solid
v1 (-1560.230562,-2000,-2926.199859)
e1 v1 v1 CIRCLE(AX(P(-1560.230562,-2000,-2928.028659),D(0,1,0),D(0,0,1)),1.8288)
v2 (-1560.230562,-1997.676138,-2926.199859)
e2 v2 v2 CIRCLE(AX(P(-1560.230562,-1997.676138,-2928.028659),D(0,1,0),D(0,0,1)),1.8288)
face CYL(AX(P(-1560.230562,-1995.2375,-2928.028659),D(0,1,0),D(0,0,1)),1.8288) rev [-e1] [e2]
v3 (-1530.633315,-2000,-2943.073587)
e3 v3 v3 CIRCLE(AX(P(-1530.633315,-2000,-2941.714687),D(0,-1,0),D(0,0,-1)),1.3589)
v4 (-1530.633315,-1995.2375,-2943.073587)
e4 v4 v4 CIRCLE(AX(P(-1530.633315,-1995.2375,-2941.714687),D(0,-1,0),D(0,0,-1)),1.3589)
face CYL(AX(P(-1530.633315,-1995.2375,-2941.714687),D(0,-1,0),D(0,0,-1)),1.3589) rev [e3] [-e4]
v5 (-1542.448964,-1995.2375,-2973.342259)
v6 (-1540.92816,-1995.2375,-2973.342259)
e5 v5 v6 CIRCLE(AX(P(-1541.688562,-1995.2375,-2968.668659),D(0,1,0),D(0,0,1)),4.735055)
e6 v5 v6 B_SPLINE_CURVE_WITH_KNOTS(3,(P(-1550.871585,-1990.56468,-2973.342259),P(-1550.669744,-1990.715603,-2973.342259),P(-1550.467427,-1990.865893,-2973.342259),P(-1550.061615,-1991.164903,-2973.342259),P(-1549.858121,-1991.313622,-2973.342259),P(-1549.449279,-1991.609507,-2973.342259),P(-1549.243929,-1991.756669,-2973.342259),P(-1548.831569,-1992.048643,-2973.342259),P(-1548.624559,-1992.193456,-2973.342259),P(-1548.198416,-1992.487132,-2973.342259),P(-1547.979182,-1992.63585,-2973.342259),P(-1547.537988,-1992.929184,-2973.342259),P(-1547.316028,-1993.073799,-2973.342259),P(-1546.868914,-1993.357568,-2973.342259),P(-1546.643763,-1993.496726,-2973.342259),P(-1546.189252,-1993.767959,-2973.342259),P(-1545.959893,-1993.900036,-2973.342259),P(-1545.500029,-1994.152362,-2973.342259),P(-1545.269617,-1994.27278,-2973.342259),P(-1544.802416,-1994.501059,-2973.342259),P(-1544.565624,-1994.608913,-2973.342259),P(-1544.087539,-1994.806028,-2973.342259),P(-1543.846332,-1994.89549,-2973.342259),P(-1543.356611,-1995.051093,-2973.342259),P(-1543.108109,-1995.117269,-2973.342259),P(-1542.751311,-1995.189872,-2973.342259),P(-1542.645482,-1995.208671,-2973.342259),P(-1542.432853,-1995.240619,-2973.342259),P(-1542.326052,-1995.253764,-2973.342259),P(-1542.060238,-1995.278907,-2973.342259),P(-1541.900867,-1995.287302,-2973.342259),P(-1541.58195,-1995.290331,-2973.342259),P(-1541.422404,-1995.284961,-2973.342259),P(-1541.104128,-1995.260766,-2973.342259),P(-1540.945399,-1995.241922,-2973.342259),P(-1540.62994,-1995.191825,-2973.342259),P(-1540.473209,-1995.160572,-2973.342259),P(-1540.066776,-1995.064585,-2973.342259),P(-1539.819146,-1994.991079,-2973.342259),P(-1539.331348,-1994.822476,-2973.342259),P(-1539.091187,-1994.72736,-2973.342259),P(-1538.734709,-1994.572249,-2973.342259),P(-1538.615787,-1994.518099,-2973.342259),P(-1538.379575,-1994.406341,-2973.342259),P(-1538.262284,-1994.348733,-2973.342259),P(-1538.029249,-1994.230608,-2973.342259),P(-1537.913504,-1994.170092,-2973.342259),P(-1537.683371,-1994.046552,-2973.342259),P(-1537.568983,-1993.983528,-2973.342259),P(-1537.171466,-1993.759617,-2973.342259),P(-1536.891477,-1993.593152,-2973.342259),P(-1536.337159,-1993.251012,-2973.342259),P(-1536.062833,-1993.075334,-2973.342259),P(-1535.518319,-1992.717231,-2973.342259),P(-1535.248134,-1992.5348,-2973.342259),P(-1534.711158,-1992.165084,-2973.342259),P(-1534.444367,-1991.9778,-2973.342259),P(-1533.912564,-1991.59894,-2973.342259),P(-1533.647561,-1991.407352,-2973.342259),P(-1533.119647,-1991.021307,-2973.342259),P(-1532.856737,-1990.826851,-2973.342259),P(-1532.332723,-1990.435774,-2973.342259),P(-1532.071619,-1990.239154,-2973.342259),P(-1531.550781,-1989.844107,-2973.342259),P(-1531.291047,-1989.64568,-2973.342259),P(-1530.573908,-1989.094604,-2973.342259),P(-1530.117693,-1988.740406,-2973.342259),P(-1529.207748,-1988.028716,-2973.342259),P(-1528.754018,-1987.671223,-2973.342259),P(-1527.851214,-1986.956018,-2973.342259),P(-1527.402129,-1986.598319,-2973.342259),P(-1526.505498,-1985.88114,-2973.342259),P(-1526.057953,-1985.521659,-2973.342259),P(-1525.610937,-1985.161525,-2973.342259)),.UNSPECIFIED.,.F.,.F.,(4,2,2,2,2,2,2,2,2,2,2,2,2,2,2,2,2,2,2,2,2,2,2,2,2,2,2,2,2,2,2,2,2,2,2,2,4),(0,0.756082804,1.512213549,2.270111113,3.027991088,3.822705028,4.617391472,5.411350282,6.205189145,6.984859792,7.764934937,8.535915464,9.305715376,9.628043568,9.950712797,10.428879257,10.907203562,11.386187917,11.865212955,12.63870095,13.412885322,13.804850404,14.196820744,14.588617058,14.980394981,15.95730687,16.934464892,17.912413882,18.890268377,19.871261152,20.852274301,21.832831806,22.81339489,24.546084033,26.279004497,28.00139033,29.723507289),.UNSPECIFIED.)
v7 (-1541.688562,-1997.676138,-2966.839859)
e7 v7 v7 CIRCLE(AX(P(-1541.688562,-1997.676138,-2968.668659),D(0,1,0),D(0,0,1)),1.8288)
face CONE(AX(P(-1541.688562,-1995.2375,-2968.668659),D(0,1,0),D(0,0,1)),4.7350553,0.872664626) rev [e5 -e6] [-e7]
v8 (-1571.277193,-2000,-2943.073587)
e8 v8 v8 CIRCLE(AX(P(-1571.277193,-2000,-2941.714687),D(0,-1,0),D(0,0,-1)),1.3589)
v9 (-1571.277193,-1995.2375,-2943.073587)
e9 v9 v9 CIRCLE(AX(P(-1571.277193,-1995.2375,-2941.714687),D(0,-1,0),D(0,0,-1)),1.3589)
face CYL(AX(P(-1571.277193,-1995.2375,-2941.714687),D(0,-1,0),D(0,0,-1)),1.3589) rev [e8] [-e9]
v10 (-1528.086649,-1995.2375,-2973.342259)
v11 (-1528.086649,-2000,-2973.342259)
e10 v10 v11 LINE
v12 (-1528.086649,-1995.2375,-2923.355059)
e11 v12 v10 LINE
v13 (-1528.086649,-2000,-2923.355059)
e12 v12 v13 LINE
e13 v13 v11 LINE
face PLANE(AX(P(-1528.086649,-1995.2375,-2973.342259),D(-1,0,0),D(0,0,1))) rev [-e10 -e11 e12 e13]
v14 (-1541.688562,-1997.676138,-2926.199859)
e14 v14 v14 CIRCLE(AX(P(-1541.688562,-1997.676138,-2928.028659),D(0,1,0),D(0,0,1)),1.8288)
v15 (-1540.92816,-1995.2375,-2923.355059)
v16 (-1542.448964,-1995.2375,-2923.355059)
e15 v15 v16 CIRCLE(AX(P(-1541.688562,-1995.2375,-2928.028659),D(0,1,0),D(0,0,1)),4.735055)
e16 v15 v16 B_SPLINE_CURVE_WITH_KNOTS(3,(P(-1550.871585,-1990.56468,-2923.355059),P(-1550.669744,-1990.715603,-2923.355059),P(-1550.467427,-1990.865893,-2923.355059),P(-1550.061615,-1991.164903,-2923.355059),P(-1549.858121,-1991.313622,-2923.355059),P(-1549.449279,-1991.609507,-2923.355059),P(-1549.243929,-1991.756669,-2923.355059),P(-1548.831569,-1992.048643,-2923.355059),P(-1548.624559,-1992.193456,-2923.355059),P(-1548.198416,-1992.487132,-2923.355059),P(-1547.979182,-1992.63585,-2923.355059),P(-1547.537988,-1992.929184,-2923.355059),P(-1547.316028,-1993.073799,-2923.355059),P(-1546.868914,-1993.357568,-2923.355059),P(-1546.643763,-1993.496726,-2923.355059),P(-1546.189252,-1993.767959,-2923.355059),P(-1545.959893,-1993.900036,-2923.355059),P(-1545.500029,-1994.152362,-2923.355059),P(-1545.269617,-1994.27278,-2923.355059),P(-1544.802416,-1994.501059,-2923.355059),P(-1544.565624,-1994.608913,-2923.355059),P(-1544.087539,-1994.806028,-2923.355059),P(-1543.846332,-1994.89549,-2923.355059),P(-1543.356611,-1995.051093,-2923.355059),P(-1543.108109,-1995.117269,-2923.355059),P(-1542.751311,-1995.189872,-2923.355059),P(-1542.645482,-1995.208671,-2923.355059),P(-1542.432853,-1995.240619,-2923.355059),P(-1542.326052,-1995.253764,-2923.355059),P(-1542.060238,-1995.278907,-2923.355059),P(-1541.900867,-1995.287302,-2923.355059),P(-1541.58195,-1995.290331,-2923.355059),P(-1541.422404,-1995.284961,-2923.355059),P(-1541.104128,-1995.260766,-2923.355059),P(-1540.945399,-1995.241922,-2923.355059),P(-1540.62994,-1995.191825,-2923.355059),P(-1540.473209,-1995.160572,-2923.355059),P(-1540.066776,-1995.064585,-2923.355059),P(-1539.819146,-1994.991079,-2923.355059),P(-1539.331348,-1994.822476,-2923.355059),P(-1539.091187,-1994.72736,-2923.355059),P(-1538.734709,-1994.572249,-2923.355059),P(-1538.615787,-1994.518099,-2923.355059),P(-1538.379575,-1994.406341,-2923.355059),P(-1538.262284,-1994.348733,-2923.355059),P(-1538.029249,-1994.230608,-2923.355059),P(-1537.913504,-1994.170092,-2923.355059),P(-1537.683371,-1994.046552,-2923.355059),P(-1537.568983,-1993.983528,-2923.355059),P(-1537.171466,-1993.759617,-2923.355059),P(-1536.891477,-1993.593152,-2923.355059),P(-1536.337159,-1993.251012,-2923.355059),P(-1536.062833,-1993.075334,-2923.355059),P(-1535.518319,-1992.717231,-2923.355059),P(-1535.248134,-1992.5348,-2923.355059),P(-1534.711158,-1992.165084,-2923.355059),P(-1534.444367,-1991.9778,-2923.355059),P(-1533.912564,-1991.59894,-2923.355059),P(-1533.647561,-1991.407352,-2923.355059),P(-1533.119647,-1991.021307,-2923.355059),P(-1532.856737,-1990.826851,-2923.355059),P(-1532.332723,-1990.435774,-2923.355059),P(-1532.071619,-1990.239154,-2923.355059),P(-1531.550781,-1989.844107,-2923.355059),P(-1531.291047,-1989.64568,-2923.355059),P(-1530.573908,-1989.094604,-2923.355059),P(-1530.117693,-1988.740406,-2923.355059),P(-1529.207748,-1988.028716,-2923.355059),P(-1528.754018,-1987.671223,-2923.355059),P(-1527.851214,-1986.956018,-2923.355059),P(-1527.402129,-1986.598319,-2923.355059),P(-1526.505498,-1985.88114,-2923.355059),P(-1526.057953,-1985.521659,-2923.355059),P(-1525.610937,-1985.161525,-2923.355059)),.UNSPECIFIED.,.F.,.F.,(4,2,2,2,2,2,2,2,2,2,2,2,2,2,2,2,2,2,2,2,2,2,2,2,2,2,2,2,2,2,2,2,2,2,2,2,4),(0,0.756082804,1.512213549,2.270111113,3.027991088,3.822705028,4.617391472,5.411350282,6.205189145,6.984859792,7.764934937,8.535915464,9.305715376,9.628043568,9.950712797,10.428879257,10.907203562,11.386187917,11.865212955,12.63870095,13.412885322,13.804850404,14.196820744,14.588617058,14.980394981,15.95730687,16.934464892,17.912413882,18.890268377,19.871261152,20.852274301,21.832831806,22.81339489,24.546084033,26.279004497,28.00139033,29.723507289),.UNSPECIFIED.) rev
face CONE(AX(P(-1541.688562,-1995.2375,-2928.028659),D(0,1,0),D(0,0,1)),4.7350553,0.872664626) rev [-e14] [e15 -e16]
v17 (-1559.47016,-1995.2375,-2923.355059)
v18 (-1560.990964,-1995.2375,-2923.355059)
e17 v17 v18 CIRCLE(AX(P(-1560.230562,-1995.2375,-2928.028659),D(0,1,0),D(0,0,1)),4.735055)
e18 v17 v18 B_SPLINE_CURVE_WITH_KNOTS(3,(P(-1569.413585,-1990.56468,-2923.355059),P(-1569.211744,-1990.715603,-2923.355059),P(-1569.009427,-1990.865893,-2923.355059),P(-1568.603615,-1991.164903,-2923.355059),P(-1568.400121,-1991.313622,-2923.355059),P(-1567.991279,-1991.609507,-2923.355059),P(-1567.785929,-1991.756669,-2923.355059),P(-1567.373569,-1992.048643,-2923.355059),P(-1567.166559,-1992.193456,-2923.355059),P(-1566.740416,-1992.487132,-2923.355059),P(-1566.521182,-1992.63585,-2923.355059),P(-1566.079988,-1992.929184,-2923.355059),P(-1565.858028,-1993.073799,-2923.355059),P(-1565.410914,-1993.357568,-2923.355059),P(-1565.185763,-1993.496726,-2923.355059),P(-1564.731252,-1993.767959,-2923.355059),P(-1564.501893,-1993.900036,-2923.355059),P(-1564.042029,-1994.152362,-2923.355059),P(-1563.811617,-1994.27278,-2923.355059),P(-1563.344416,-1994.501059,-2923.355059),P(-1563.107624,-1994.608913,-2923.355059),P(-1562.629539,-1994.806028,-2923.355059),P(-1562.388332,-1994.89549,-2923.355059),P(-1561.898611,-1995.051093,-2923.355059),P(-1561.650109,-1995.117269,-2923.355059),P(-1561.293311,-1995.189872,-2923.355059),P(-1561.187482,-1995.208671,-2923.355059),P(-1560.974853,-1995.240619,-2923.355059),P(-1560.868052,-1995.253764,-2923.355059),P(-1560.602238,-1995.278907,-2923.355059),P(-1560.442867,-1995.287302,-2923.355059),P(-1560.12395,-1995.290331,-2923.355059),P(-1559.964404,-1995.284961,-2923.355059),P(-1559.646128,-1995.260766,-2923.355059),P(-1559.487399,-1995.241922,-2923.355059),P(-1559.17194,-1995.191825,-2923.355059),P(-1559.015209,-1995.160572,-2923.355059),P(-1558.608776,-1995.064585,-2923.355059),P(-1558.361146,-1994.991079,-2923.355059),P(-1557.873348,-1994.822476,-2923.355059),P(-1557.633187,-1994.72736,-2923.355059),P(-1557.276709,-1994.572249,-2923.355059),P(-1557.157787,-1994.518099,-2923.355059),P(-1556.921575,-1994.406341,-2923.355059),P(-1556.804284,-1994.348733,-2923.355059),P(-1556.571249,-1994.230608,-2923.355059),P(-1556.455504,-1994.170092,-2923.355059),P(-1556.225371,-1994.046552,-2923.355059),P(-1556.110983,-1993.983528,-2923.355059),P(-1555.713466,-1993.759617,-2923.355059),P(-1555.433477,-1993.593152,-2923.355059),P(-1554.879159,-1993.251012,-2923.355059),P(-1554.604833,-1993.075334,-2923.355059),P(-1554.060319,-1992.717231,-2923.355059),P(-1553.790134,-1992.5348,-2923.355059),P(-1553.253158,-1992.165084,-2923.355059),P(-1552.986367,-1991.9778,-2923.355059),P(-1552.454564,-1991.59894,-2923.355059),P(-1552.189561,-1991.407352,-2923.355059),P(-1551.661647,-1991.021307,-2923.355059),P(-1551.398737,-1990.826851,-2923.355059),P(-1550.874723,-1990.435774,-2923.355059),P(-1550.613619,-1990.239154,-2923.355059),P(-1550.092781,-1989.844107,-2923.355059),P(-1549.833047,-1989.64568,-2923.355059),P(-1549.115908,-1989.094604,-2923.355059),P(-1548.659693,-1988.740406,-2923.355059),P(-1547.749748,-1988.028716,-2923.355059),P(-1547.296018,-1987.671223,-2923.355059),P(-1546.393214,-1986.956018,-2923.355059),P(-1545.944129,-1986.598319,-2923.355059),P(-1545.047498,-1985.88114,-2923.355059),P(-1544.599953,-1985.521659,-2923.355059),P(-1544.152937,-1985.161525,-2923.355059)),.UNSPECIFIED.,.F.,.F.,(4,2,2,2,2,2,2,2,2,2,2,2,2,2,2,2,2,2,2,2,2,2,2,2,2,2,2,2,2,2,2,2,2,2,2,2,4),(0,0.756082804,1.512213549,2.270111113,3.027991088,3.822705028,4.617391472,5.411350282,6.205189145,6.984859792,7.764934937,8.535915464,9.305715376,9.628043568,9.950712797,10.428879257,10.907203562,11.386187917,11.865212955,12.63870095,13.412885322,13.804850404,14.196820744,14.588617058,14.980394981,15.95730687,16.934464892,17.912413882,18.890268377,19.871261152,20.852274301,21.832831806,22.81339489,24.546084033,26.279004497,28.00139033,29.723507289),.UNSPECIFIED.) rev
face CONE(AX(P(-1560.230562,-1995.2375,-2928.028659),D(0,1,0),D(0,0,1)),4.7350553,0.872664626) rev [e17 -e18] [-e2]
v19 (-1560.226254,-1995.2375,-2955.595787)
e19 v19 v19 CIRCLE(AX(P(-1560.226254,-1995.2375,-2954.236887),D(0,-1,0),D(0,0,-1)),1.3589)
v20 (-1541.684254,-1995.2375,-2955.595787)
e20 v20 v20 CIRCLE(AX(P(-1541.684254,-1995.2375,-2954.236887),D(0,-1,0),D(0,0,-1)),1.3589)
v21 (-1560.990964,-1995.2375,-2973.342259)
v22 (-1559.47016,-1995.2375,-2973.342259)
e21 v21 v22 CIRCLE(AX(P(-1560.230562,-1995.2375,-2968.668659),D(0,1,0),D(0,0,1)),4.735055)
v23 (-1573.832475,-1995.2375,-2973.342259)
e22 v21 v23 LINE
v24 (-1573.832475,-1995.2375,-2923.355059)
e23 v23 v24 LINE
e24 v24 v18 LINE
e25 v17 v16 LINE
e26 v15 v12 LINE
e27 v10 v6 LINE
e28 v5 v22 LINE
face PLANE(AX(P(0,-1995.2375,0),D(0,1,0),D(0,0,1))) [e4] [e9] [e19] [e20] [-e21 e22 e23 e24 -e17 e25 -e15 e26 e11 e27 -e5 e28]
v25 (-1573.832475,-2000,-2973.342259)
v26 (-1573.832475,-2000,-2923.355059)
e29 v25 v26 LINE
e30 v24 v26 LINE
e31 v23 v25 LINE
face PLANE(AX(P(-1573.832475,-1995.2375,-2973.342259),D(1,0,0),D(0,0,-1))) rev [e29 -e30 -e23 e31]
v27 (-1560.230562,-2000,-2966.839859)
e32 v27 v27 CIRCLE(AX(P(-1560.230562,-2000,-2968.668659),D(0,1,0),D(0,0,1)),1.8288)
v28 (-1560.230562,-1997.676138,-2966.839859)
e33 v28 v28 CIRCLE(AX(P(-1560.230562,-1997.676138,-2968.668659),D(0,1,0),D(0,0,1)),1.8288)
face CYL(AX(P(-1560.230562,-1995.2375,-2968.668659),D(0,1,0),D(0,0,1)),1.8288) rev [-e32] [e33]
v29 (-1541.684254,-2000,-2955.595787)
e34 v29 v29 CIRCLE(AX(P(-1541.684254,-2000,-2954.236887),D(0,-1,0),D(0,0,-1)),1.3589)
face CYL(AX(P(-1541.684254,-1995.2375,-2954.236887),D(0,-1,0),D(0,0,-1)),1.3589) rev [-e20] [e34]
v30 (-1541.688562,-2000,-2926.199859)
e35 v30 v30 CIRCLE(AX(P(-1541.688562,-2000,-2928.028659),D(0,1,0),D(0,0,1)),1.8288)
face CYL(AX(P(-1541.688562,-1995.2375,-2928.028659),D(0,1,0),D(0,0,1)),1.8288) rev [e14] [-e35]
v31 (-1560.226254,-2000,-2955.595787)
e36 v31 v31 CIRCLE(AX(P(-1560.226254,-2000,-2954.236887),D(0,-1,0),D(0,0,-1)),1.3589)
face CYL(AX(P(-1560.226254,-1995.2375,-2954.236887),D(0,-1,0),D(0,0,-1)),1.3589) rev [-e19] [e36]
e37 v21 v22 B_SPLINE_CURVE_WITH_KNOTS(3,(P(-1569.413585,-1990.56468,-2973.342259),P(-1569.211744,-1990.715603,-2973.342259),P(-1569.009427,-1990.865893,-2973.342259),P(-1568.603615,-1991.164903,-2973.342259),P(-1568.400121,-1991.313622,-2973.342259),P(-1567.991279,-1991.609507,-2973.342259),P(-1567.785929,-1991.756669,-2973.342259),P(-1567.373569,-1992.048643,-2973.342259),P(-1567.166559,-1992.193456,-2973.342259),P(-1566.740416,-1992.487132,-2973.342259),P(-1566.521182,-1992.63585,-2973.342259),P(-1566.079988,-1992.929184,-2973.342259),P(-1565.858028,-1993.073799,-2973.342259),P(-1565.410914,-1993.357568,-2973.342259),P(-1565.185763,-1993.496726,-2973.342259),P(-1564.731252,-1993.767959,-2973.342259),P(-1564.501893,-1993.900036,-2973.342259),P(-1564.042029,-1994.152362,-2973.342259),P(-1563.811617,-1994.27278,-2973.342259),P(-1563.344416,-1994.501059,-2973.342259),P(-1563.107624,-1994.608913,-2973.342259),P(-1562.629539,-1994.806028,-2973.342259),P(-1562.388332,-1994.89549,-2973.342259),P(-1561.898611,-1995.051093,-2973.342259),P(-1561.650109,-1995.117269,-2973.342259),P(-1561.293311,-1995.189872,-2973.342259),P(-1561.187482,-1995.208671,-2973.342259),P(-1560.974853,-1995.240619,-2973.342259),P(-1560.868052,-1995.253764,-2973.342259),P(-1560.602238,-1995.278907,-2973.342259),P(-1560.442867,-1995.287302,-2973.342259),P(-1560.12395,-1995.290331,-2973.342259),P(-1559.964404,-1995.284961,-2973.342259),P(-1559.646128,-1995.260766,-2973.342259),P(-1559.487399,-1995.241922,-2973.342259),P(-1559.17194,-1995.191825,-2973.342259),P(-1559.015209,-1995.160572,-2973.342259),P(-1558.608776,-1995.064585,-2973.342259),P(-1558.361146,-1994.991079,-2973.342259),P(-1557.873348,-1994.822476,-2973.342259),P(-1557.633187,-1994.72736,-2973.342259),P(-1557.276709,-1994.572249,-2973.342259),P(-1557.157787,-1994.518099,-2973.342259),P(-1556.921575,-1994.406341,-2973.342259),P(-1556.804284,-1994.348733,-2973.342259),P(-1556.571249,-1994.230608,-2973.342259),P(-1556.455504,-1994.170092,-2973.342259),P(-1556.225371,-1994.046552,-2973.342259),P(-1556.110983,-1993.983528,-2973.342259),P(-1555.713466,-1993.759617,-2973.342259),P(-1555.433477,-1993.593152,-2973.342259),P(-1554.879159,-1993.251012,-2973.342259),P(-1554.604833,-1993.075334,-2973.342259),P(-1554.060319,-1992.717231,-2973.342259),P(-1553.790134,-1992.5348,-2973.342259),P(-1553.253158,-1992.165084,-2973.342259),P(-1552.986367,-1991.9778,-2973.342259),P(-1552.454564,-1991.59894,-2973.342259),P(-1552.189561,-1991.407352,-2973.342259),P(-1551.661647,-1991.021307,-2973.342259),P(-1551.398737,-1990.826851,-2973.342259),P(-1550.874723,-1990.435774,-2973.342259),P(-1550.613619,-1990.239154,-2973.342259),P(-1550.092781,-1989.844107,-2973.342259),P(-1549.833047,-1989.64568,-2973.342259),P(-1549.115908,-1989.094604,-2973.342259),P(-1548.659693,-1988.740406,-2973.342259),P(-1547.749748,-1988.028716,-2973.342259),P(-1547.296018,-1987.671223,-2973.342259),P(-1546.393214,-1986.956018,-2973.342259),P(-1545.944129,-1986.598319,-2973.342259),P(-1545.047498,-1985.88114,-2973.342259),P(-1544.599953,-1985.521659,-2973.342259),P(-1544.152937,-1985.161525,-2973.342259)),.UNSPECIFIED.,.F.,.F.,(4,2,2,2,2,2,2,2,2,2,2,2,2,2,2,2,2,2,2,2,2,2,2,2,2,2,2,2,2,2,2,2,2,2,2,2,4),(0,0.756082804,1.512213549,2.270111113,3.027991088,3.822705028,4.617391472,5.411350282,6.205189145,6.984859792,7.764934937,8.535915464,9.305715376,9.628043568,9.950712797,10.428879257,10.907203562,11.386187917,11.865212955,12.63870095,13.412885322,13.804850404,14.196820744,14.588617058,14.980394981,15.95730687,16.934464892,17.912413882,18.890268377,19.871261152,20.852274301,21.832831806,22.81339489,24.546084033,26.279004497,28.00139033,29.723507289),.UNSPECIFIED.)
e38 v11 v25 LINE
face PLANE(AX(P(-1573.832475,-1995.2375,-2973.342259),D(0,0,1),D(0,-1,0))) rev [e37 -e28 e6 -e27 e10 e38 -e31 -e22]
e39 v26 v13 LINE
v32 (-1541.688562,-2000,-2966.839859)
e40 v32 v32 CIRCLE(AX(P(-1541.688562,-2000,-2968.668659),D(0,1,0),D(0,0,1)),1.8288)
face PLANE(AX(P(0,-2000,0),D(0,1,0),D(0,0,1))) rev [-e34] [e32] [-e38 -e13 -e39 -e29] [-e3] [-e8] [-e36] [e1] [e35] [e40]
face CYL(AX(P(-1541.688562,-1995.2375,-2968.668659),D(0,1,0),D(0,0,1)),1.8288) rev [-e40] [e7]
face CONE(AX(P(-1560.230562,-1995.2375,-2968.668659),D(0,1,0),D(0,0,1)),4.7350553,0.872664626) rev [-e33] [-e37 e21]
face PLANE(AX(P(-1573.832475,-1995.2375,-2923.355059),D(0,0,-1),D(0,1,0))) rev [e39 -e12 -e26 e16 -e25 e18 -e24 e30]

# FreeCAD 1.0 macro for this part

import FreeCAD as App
import Part
import Sketcher
Q = App.Units.Quantity

doc = App.newDocument("Part")
body = doc.addObject("PartDesign::Body", "Body")

# Sketch on XZ plane
sketch1 = body.newObject("Sketcher::SketchObject", "Sketch")
sketch1.AttachmentSupport = (doc.getObject("XZ_Plane"), [""])
sketch1.MapMode = "FlatFace"
sketch1.AttachmentOffset = App.Placement(App.Vector(0, 0, 2000), App.Rotation())
sketch1.addGeometry([
    Part.LineSegment(App.Vector(-1574, -2973, 0), App.Vector(-1574, -2923, 0)),
    Part.LineSegment(App.Vector(-1574, -2923, 0), App.Vector(-1528, -2923, 0)),
    Part.LineSegment(App.Vector(-1528, -2923, 0), App.Vector(-1528, -2973, 0)),
    Part.LineSegment(App.Vector(-1528, -2973, 0), App.Vector(-1574, -2973, 0)),
], False)
sketch1.addConstraint([
    Sketcher.Constraint("Coincident", 0, 2, 1, 1),
    Sketcher.Constraint("Coincident", 1, 2, 2, 1),
    Sketcher.Constraint("Coincident", 2, 2, 3, 1),
    Sketcher.Constraint("Coincident", 3, 2, 0, 1),
    Sketcher.Constraint("Vertical", 0),
    Sketcher.Constraint("Horizontal", 1),
    Sketcher.Constraint("Vertical", 2),
    Sketcher.Constraint("Horizontal", 3),
    Sketcher.Constraint("DistanceY", 0, 1, 0, 2, Q("1.968 in")),
    Sketcher.Constraint("DistanceX", 1, 1, 1, 2, 45.745826),
    Sketcher.Constraint("DistanceY", 0, 2, -1, 1, 2923.355059),
    Sketcher.Constraint("DistanceX", 1, 2, -1, 1, 1528.086649),
])
pad1 = body.newObject("PartDesign::Pad", "Pad")
pad1.Profile = sketch1
pad1.Length = Q("0.1875 in")
pad1.Reversed = True

# Sketch on XZ plane
sketch2 = body.newObject("Sketcher::SketchObject", "Sketch001")
sketch2.AttachmentSupport = (doc.getObject("XZ_Plane"), [""])
sketch2.MapMode = "FlatFace"
sketch2.AttachmentOffset = App.Placement(App.Vector(0, 0, 1995.2375), App.Rotation())
sketch2.addGeometry([
    Part.Circle(App.Vector(-1560.2, -2968.7, 0), App.Vector(0, 0, 1), 1.8),
    Part.Circle(App.Vector(-1560.2, -2928, 0), App.Vector(0, 0, 1), 1.8),
    Part.Circle(App.Vector(-1541.7, -2928, 0), App.Vector(0, 0, 1), 1.8),
    Part.Circle(App.Vector(-1541.7, -2968.7, 0), App.Vector(0, 0, 1), 1.8),
], False)
sketch2.addConstraint([
    Sketcher.Constraint("Equal", 0, 1),
    Sketcher.Constraint("Equal", 1, 2),
    Sketcher.Constraint("Equal", 2, 3),
    Sketcher.Constraint("Horizontal", 1, 3, 2, 3),
    Sketcher.Constraint("Horizontal", 0, 3, 3, 3),
    Sketcher.Constraint("Vertical", 0, 3, 1, 3),
    Sketcher.Constraint("Vertical", 2, 3, 3, 3),
    Sketcher.Constraint("Diameter", 0, Q("0.144 in")),
    Sketcher.Constraint("DistanceY", 0, 3, 1, 3, Q("1.6 in")),
    Sketcher.Constraint("DistanceX", 1, 3, 2, 3, Q("0.73 in")),
    Sketcher.Constraint("DistanceX", 0, 3, -1, 1, Q("61.4264001 in")),
    Sketcher.Constraint("DistanceY", 0, 3, -1, 1, 2968.668659),
])
doc.recompute()
hole = body.newObject("PartDesign::Hole", "Hole")
hole.Profile = sketch2
hole.ThreadType = "None"
hole.Diameter = Q("0.144 in")
hole.DepthType = "ThroughAll"
hole.HoleCutType = "Countersink"
hole.HoleCutDiameter = 9.470111
hole.HoleCutCountersinkAngle = 100
hole.Reversed = True

# Sketch on XZ plane
sketch3 = body.newObject("Sketcher::SketchObject", "Sketch002")
sketch3.AttachmentSupport = (doc.getObject("XZ_Plane"), [""])
sketch3.MapMode = "FlatFace"
sketch3.AttachmentOffset = App.Placement(App.Vector(0, 0, 2000), App.Rotation())
sketch3.addGeometry([
    Part.Circle(App.Vector(-1541.7, -2954.2, 0), App.Vector(0, 0, 1), 1.4),
    Part.Circle(App.Vector(-1560.2, -2954.2, 0), App.Vector(0, 0, 1), 1.4),
    Part.Circle(App.Vector(-1571.3, -2941.7, 0), App.Vector(0, 0, 1), 1.4),
    Part.Circle(App.Vector(-1530.6, -2941.7, 0), App.Vector(0, 0, 1), 1.4),
], False)
sketch3.addConstraint([
    Sketcher.Constraint("Equal", 0, 1),
    Sketcher.Constraint("Equal", 1, 2),
    Sketcher.Constraint("Equal", 2, 3),
    Sketcher.Constraint("Horizontal", 0, 3, 1, 3),
    Sketcher.Constraint("Horizontal", 2, 3, 3, 3),
    Sketcher.Constraint("Diameter", 0, Q("0.107 in")),
    Sketcher.Constraint("DistanceX", 1, 3, 0, 3, Q("0.73 in")),
    Sketcher.Constraint("DistanceY", 1, 3, 2, 3, Q("0.493 in")),
    Sketcher.Constraint("DistanceX", 2, 3, 1, 3, 11.050939),
    Sketcher.Constraint("DistanceX", 0, 3, 3, 3, 11.050939),
    Sketcher.Constraint("DistanceX", 0, 3, -1, 1, 1541.684254),
    Sketcher.Constraint("DistanceY", 0, 3, -1, 1, 2954.236887),
])
pocket1 = body.newObject("PartDesign::Pocket", "Pocket")
pocket1.Profile = sketch3
pocket1.Type = "ThroughAll"

doc.recompute()
